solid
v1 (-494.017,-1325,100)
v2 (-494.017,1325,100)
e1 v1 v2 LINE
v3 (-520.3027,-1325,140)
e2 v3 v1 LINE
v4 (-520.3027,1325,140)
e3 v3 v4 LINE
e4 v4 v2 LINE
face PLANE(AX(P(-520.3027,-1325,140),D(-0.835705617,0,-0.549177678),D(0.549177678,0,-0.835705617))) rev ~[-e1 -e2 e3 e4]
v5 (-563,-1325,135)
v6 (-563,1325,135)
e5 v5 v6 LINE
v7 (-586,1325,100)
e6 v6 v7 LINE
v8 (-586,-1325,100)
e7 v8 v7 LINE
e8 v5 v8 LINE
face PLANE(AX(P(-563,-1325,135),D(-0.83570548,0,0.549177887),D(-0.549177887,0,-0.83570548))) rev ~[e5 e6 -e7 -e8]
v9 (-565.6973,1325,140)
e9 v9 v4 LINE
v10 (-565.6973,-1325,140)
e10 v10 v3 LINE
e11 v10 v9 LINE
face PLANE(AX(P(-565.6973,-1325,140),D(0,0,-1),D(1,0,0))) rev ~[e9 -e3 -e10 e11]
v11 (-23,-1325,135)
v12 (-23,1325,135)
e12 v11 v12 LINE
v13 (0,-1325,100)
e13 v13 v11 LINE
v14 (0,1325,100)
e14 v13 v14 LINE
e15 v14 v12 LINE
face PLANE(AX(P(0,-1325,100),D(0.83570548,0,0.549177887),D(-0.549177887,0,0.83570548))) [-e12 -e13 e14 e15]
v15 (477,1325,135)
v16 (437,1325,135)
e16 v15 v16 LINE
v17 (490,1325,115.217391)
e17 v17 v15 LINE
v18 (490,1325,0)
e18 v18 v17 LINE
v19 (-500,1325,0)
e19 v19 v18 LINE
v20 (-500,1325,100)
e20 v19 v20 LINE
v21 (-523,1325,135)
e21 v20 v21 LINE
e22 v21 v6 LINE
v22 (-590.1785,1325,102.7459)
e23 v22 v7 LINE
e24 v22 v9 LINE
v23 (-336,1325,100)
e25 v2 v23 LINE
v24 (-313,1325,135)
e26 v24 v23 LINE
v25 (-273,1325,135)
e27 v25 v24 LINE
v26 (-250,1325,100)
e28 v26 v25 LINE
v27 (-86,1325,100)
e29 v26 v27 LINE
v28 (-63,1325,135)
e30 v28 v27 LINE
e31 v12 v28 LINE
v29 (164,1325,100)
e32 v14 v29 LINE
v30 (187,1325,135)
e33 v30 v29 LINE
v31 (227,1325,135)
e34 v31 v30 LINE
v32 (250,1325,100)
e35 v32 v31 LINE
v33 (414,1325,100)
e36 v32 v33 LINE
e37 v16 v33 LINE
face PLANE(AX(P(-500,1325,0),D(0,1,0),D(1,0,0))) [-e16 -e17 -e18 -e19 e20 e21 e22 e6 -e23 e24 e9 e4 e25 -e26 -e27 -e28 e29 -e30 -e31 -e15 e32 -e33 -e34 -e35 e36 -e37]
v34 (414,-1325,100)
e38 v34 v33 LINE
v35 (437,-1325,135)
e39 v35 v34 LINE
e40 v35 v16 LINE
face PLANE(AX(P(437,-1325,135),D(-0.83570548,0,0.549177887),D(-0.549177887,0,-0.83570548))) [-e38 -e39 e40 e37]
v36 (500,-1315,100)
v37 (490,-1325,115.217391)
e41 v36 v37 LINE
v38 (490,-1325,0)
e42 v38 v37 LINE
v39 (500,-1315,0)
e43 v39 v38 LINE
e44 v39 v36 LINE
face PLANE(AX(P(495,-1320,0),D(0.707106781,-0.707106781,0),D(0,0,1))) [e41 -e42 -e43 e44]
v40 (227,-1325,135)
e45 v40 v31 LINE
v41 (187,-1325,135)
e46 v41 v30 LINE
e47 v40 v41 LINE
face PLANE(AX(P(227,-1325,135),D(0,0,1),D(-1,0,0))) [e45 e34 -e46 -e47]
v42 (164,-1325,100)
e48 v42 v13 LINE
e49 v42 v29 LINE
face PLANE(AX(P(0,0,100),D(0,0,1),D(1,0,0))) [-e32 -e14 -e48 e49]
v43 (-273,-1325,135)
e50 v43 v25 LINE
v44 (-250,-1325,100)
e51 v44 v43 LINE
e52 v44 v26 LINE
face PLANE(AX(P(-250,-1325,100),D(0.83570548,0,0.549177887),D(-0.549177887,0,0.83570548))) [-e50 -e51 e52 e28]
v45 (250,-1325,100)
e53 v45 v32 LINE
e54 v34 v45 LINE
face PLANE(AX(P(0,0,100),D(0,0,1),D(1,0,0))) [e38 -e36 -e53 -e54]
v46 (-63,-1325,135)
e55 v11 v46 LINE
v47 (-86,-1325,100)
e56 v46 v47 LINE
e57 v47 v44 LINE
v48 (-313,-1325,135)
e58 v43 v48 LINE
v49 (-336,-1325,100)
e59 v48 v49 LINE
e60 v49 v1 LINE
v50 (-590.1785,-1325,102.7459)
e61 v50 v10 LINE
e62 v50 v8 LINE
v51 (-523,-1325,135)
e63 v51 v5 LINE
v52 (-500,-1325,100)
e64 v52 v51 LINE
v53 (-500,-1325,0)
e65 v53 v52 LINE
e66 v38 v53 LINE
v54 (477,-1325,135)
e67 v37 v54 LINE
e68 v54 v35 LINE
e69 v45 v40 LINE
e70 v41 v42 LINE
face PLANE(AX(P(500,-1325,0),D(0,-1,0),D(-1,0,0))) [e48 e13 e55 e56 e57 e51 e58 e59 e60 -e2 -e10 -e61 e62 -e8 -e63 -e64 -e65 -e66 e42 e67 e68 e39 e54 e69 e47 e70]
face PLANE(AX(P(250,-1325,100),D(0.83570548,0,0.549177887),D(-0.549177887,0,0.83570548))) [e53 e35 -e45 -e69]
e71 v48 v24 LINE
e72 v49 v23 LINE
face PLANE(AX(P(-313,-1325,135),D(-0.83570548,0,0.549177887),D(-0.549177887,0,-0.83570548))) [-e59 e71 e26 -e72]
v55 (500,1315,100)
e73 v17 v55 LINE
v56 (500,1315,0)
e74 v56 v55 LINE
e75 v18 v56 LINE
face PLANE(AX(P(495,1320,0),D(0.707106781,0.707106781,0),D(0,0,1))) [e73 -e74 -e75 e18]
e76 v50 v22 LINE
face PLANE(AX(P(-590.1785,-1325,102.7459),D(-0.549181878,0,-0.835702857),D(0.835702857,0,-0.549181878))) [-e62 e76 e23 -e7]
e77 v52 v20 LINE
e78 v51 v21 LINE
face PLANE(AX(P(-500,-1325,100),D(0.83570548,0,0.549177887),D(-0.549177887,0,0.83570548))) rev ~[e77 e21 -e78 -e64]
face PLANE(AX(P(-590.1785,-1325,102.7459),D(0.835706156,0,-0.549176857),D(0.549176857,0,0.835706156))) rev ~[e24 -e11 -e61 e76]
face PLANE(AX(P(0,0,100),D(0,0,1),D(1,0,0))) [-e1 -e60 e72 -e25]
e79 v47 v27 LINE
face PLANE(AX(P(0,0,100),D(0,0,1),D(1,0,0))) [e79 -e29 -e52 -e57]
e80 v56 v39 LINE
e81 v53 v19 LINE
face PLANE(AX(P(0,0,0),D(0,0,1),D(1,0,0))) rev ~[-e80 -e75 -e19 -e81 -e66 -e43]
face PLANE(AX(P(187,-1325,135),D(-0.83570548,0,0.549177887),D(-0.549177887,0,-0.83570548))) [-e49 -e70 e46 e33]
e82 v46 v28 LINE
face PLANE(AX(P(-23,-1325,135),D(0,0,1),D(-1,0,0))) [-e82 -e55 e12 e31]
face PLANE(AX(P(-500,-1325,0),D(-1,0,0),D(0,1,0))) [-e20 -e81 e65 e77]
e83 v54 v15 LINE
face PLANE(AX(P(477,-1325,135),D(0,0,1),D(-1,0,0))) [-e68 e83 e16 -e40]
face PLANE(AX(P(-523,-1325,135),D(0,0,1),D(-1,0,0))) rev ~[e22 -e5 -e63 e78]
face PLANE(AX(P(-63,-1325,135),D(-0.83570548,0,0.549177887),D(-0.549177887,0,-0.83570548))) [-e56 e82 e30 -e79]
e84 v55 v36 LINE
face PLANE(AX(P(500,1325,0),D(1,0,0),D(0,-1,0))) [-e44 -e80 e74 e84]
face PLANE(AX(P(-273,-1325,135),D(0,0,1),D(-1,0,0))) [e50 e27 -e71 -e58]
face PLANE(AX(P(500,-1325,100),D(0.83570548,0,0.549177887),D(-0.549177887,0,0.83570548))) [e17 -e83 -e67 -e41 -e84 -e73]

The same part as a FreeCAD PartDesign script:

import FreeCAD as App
import Part
import Sketcher

V = App.Vector
Q = App.Units.Quantity


def edges_at(feature, points):
    """Names of the edges that pass closest to the given points."""
    edges = feature.Shape.Edges
    near = lambda p: min(range(len(edges)), key=lambda i: edges[i].distToShape(Part.Vertex(*p))[0])
    return sorted({f"Edge{near(p) + 1}" for p in points})


def add_polygon(sketch, points):
    """Adds a closed chain of lines whose ends are joined by coincident constraints."""
    first, n = sketch.GeometryCount, len(points)
    for a, b in zip(points, points[1:] + points[:1]):
        sketch.addGeometry(Part.LineSegment(App.Vector(*a, 0), App.Vector(*b, 0)), False)
    for i in range(n):
        sketch.addConstraint(Sketcher.Constraint("Coincident", first + i, 2, first + (i + 1) % n, 1))

doc = App.newDocument("Part")
params = doc.addObject("Spreadsheet::Sheet", "Params")
for row, (alias, value) in enumerate([
    ("sketch1_width", "1000 mm"),
    ("sketch1_height", "2650 mm"),
    ("pad1_length", "100 mm"),
    ("sketch2_width", "40 mm"),
    ("sketch2_width2", "86 mm"),
    ("sketch2_length", "5 mm"),
    ("pad2_length", "2650 mm"),
    ("chamfer_size", "10 mm"),
], start=1):
    params.set(f"A{row}", alias)
    params.set(f"B{row}", "=" + value)
    params.setAlias(f"B{row}", alias)

body = doc.addObject("PartDesign::Body", "Body")

# Sketch on XY plane
sketch1 = body.newObject("Sketcher::SketchObject", "Sketch")
sketch1.AttachmentSupport = (doc.getObject("XY_Plane"), [""])
sketch1.MapMode = "FlatFace"
add_polygon(sketch1, [(500, 1325), (-500, 1325), (-500, -1325), (500, -1325)])  # lines 0-3
sketch1.addConstraint(Sketcher.Constraint("Horizontal", 0))
sketch1.addConstraint(Sketcher.Constraint("Vertical", 1))
sketch1.addConstraint(Sketcher.Constraint("Horizontal", 2))
sketch1.addConstraint(Sketcher.Constraint("Vertical", 3))
sketch1.addConstraint(Sketcher.Constraint("Symmetric", 0, 2, 2, 2, -1, 1))
sketch1.addConstraint(Sketcher.Constraint("DistanceX", 0, 2, 0, 1, Q("1000 mm")))
sketch1.addConstraint(Sketcher.Constraint("DistanceY", 1, 2, 1, 1, Q("2650 mm")))
sketch1.setExpression("Constraints[9]", "Params.sketch1_width")
sketch1.setExpression("Constraints[10]", "Params.sketch1_height")
pad1 = body.newObject("PartDesign::Pad", "Pad")
pad1.Profile = sketch1
pad1.setExpression("Length", "Params.pad1_length")

# Sketch on XZ plane
sketch2 = body.newObject("Sketcher::SketchObject", "Sketch001")
sketch2.AttachmentSupport = (doc.getObject("XZ_Plane"), [""])
sketch2.MapMode = "FlatFace"
sketch2.AttachmentOffset = App.Placement(V(0, 0, 1325), App.Rotation())
add_polygon(sketch2, [(-523, 135), (-500, 100), (-494, 100), (-520.3, 140), (-565.7, 140), (-590.2, 102.7), (-586, 100), (-563, 135)])  # lines 0-7
add_polygon(sketch2, [(414, 100), (500, 100), (477, 135), (437, 135)])  # lines 8-11
add_polygon(sketch2, [(-313, 135), (-336, 100), (-250, 100), (-273, 135)])  # lines 12-15
add_polygon(sketch2, [(164, 100), (250, 100), (227, 135), (187, 135)])  # lines 16-19
add_polygon(sketch2, [(-63, 135), (-86, 100), (0, 100), (-23, 135)])  # lines 20-23
sketch2.addConstraint(Sketcher.Constraint("Horizontal", 1))
sketch2.addConstraint(Sketcher.Constraint("Horizontal", 3))
sketch2.addConstraint(Sketcher.Constraint("Horizontal", 7))
sketch2.addConstraint(Sketcher.Constraint("Horizontal", 8))
sketch2.addConstraint(Sketcher.Constraint("Horizontal", 10))
sketch2.addConstraint(Sketcher.Constraint("Horizontal", 13))
sketch2.addConstraint(Sketcher.Constraint("Horizontal", 15))
sketch2.addConstraint(Sketcher.Constraint("Horizontal", 16))
sketch2.addConstraint(Sketcher.Constraint("Horizontal", 18))
sketch2.addConstraint(Sketcher.Constraint("Horizontal", 21))
sketch2.addConstraint(Sketcher.Constraint("Horizontal", 23))
sketch2.addConstraint(Sketcher.Constraint("Symmetric", 0, 2, 8, 2, -2))
sketch2.addConstraint(Sketcher.Constraint("Symmetric", 13, 2, 16, 2, -2))
sketch2.addConstraint(Sketcher.Constraint("PointOnObject", 21, 2, -2))
sketch2.addConstraint(Sketcher.Constraint("Parallel", 0, 2))
sketch2.addConstraint(Sketcher.Constraint("Perpendicular", 4, 5))
sketch2.addConstraint(Sketcher.Constraint("Perpendicular", 5, 6))
sketch2.addConstraint(Sketcher.Constraint("Parallel", 2, 9))
sketch2.addConstraint(Sketcher.Constraint("Parallel", 6, 11))
sketch2.addConstraint(Sketcher.Constraint("Parallel", 11, 12))
sketch2.addConstraint(Sketcher.Constraint("Parallel", 9, 14))
sketch2.addConstraint(Sketcher.Constraint("Parallel", 14, 17))
sketch2.addConstraint(Sketcher.Constraint("Parallel", 12, 19))
sketch2.addConstraint(Sketcher.Constraint("Parallel", 19, 20))
sketch2.addConstraint(Sketcher.Constraint("Parallel", 17, 22))
sketch2.addConstraint(Sketcher.Constraint("Horizontal", 1, 2, 5, 2))
sketch2.addConstraint(Sketcher.Constraint("Horizontal", 7, 2, 9, 2))
sketch2.addConstraint(Sketcher.Constraint("Horizontal", 11, 2, 12, 2))
sketch2.addConstraint(Sketcher.Constraint("Horizontal", 10, 2, 14, 2))
sketch2.addConstraint(Sketcher.Constraint("Horizontal", 15, 2, 17, 2))
sketch2.addConstraint(Sketcher.Constraint("Horizontal", 19, 2, 20, 2))
sketch2.addConstraint(Sketcher.Constraint("Horizontal", 18, 2, 22, 2))
sketch2.addConstraint(Sketcher.Constraint("Equal", 7, 10))
sketch2.addConstraint(Sketcher.Constraint("Equal", 8, 13))
sketch2.addConstraint(Sketcher.Constraint("Equal", 13, 16))
sketch2.addConstraint(Sketcher.Constraint("Equal", 16, 21))
sketch2.addConstraint(Sketcher.Constraint("Equal", 0, 6))
sketch2.addConstraint(Sketcher.Constraint("DistanceX", 7, 1, 7, 2, Q("40 mm")))
sketch2.addConstraint(Sketcher.Constraint("DistanceX", 8, 1, 8, 2, Q("86 mm")))
sketch2.addConstraint(Sketcher.Constraint("Distance", 5, Q("5 mm")))
sketch2.addConstraint(Sketcher.Constraint("DistanceX", 13, 2, -1, 1, Q("250 mm")))
sketch2.addConstraint(Sketcher.Constraint("DistanceY", 0, 2, 2, 2, Q("40 mm")))
sketch2.addConstraint(Sketcher.Constraint("DistanceY", 6, 2, 3, 2, Q("5 mm")))
sketch2.addConstraint(Sketcher.Constraint("DistanceX", 0, 2, 13, 2, Q("250 mm")))
sketch2.addConstraint(Sketcher.Constraint("DistanceY", -1, 1, 0, 2, Q("100 mm")))
sketch2.addConstraint(Sketcher.Constraint("DistanceX", 1, 1, 1, 2, Q("5.983 mm")))
sketch2.setExpression("Constraints[61]", "Params.sketch2_width")
sketch2.setExpression("Constraints[62]", "Params.sketch2_width2")
sketch2.setExpression("Constraints[63]", "Params.sketch2_length")
pad2 = body.newObject("PartDesign::Pad", "Pad001")
pad2.Profile = sketch2
pad2.setExpression("Length", "Params.pad2_length")
pad2.Reversed = True
doc.recompute()

chamfer = body.newObject("PartDesign::Chamfer", "Chamfer")
chamfer.Base = (pad2, edges_at(pad2, [(500, -1325, 50), (500, 1325, 50)]))
chamfer.setExpression("Size", "Params.chamfer_size")

doc.recompute()
